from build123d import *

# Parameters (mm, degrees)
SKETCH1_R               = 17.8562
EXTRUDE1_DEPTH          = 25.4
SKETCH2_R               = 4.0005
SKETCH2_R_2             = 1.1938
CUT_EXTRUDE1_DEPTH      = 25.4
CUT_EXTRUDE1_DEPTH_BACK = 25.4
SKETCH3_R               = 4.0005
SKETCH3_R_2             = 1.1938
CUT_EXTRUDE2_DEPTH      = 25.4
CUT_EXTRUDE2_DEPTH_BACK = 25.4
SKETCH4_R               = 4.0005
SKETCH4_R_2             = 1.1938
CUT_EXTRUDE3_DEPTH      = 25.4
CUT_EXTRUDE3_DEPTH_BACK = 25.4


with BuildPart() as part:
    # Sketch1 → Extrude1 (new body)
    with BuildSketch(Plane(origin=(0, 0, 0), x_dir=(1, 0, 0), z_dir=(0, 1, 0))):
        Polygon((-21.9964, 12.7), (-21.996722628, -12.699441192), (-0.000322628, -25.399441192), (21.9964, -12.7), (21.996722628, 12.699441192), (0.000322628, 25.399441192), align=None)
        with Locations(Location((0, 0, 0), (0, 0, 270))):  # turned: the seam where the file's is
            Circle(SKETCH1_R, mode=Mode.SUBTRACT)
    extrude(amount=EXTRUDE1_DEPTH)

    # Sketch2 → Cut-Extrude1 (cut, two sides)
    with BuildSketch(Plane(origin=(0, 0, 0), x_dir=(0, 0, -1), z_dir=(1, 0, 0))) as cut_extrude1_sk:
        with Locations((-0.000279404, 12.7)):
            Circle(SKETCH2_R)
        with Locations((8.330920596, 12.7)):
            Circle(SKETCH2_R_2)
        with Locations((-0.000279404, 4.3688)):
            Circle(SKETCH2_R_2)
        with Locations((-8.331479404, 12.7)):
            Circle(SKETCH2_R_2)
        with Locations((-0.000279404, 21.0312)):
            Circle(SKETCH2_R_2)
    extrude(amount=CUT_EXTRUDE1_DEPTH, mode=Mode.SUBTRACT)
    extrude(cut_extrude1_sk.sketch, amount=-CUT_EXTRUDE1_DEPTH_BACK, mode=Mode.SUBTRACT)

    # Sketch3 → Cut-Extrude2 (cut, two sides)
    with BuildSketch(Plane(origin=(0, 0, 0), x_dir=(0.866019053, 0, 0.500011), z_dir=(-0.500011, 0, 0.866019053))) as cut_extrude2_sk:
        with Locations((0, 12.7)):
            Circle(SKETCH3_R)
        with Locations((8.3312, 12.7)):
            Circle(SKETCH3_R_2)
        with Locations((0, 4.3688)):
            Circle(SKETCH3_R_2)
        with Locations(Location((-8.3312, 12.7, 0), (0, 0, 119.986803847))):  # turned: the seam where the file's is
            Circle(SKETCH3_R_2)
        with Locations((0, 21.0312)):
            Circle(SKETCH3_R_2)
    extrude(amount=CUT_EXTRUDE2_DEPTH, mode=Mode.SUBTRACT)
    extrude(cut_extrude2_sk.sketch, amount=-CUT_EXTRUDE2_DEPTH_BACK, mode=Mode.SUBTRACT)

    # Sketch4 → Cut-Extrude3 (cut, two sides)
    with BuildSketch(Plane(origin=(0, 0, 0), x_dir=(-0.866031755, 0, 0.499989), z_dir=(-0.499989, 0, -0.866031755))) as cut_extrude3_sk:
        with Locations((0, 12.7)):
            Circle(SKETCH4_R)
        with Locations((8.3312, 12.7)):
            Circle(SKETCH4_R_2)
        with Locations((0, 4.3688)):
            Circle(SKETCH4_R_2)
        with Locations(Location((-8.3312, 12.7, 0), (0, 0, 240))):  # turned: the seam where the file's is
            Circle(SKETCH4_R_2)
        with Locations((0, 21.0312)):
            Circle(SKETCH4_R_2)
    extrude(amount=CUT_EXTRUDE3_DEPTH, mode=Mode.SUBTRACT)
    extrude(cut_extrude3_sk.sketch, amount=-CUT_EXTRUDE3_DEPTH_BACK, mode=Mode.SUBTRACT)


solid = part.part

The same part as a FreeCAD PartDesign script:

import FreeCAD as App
import Part
import Sketcher
Q = App.Units.Quantity


def add_polygon(sketch, points):
    """Adds a closed chain of lines whose ends are joined by coincident constraints."""
    first, n = sketch.GeometryCount, len(points)
    for a, b in zip(points, points[1:] + points[:1]):
        sketch.addGeometry(Part.LineSegment(App.Vector(*a, 0), App.Vector(*b, 0)), False)
    for i in range(n):
        sketch.addConstraint(Sketcher.Constraint("Coincident", first + i, 2, first + (i + 1) % n, 1))

doc = App.newDocument("Part")
body = doc.addObject("PartDesign::Body", "Body")

# Sketch on XZ plane
sketch1 = body.newObject("Sketcher::SketchObject", "Sketch")
sketch1.AttachmentSupport = (doc.getObject("XZ_Plane"), [""])
sketch1.MapMode = "FlatFace"
add_polygon(sketch1, [(-22, -13), (-22, 13), (0, 25), (22, 13), (22, -13), (0, -25)])  # lines 0-5
sketch1.addGeometry(Part.Circle(App.Vector(0, 0, 0), App.Vector(0, 0, 1), 18), False)  # 6
sketch1.addConstraint(Sketcher.Constraint("Coincident", 6, 3, -1, 1))
sketch1.addConstraint(Sketcher.Constraint("Symmetric", 0, 2, 3, 2, -1, 1))
sketch1.addConstraint(Sketcher.Constraint("Symmetric", 1, 2, 4, 2, -1, 1))
sketch1.addConstraint(Sketcher.Constraint("Symmetric", 2, 2, 5, 2, -1, 1))
sketch1.addConstraint(Sketcher.Constraint("Equal", 0, 1))
sketch1.addConstraint(Sketcher.Constraint("Equal", 1, 2))
sketch1.addConstraint(Sketcher.Constraint("Diameter", 6, Q("1.406 in")))
sketch1.addConstraint(Sketcher.Constraint("DistanceY", -1, 1, 2, 2, Q("0.5 in")))
sketch1.addConstraint(Sketcher.Constraint("DistanceY", 0, 2, 1, 2, Q("0.5 in")))
sketch1.addConstraint(Sketcher.Constraint("DistanceX", -1, 1, 2, 2, Q("0.866 in")))
sketch1.addConstraint(Sketcher.Constraint("DistanceX", 0, 2, 1, 2, Q("0.866 in")))
pad1 = body.newObject("PartDesign::Pad", "Pad")
pad1.Profile = sketch1
pad1.Length = Q("1 in")
pad1.Reversed = True

# Sketch on YZ plane
sketch2 = body.newObject("Sketcher::SketchObject", "Sketch001")
sketch2.AttachmentSupport = (doc.getObject("YZ_Plane"), [""])
sketch2.MapMode = "FlatFace"
sketch2.addGeometry(Part.Circle(App.Vector(12.7, 0, 0), App.Vector(0, 0, 1), 4), False)
sketch2.addGeometry(Part.Circle(App.Vector(12.7, -8.3, 0), App.Vector(0, 0, 1), 1.2), False)
sketch2.addGeometry(Part.Circle(App.Vector(4.4, 0, 0), App.Vector(0, 0, 1), 1.2), False)
sketch2.addGeometry(Part.Circle(App.Vector(12.7, 8.3, 0), App.Vector(0, 0, 1), 1.2), False)
sketch2.addGeometry(Part.Circle(App.Vector(21, 0, 0), App.Vector(0, 0, 1), 1.2), False)
sketch2.addConstraint(Sketcher.Constraint("Equal", 1, 2))
sketch2.addConstraint(Sketcher.Constraint("Equal", 2, 3))
sketch2.addConstraint(Sketcher.Constraint("Equal", 3, 4))
sketch2.addConstraint(Sketcher.Constraint("Horizontal", 0, 3, 2, 3))
sketch2.addConstraint(Sketcher.Constraint("Horizontal", 2, 3, 4, 3))
sketch2.addConstraint(Sketcher.Constraint("Vertical", 0, 3, 1, 3))
sketch2.addConstraint(Sketcher.Constraint("Vertical", 1, 3, 3, 3))
sketch2.addConstraint(Sketcher.Constraint("Diameter", 0, Q("0.315 in")))
sketch2.addConstraint(Sketcher.Constraint("Diameter", 1, Q("0.094 in")))
sketch2.addConstraint(Sketcher.Constraint("DistanceX", -1, 1, 0, 3, Q("0.5 in")))
sketch2.addConstraint(Sketcher.Constraint("DistanceX", -1, 1, 2, 3, Q("0.172 in")))
sketch2.addConstraint(Sketcher.Constraint("DistanceX", -1, 1, 4, 3, Q("0.828 in")))
sketch2.addConstraint(Sketcher.Constraint("DistanceY", 1, 3, 0, 3, Q("0.328 in")))
sketch2.addConstraint(Sketcher.Constraint("DistanceY", 0, 3, 3, 3, Q("0.328 in")))
sketch2.addConstraint(Sketcher.Constraint("DistanceY", -1, 1, 0, 3, 0.000279))
pocket1 = body.newObject("PartDesign::Pocket", "Pocket")
pocket1.Profile = sketch2
pocket1.Type = "ThroughAll"
pocket1.Midplane = True

# Sketch on an angled plane
sketch3 = body.newObject("Sketcher::SketchObject", "Sketch002")
sketch3.Placement = App.Placement(App.Vector(0, 0, 0), App.Rotation(App.Vector(0.866019053, 0, 0.500011), App.Vector(0, 1, 0), App.Vector(-0.500011, 0, 0.866019053), "ZXY"))
sketch3.addGeometry(Part.Circle(App.Vector(0, 12.7, 0), App.Vector(0, 0, 1), 4), False)
sketch3.addGeometry(Part.Circle(App.Vector(8.3, 12.7, 0), App.Vector(0, 0, 1), 1.2), False)
sketch3.addGeometry(Part.Circle(App.Vector(0, 4.4, 0), App.Vector(0, 0, 1), 1.2), False)
sketch3.addGeometry(Part.Circle(App.Vector(-8.3, 12.7, 0), App.Vector(0, 0, 1), 1.2), False)
sketch3.addGeometry(Part.Circle(App.Vector(0, 21, 0), App.Vector(0, 0, 1), 1.2), False)
sketch3.addConstraint(Sketcher.Constraint("Equal", 1, 2))
sketch3.addConstraint(Sketcher.Constraint("Equal", 2, 3))
sketch3.addConstraint(Sketcher.Constraint("Equal", 3, 4))
sketch3.addConstraint(Sketcher.Constraint("Symmetric", 1, 3, 3, 3, -2))
sketch3.addConstraint(Sketcher.Constraint("PointOnObject", 0, 3, -2))
sketch3.addConstraint(Sketcher.Constraint("PointOnObject", 2, 3, -2))
sketch3.addConstraint(Sketcher.Constraint("PointOnObject", 4, 3, -2))
sketch3.addConstraint(Sketcher.Constraint("Horizontal", 0, 3, 1, 3))
sketch3.addConstraint(Sketcher.Constraint("Diameter", 0, Q("0.315 in")))
sketch3.addConstraint(Sketcher.Constraint("Diameter", 1, Q("0.094 in")))
sketch3.addConstraint(Sketcher.Constraint("DistanceY", -1, 1, 0, 3, Q("0.5 in")))
sketch3.addConstraint(Sketcher.Constraint("DistanceX", -1, 1, 1, 3, Q("0.328 in")))
sketch3.addConstraint(Sketcher.Constraint("DistanceY", -1, 1, 2, 3, Q("0.172 in")))
sketch3.addConstraint(Sketcher.Constraint("DistanceY", -1, 1, 4, 3, Q("0.828 in")))
pocket2 = body.newObject("PartDesign::Pocket", "Pocket001")
pocket2.Profile = sketch3
pocket2.Type = "ThroughAll"
pocket2.Midplane = True

# Sketch on an angled plane
sketch4 = body.newObject("Sketcher::SketchObject", "Sketch003")
sketch4.Placement = App.Placement(App.Vector(0, 0, 0), App.Rotation(App.Vector(-0.866031755, 0, 0.499989), App.Vector(0, 1.000000001, 0), App.Vector(-0.499989, 0, -0.866031755), "ZXY"))
sketch4.addGeometry(Part.Circle(App.Vector(0, 12.7, 0), App.Vector(0, 0, 1), 4), False)
sketch4.addGeometry(Part.Circle(App.Vector(8.3, 12.7, 0), App.Vector(0, 0, 1), 1.2), False)
sketch4.addGeometry(Part.Circle(App.Vector(0, 4.4, 0), App.Vector(0, 0, 1), 1.2), False)
sketch4.addGeometry(Part.Circle(App.Vector(-8.3, 12.7, 0), App.Vector(0, 0, 1), 1.2), False)
sketch4.addGeometry(Part.Circle(App.Vector(0, 21, 0), App.Vector(0, 0, 1), 1.2), False)
sketch4.addConstraint(Sketcher.Constraint("Equal", 1, 2))
sketch4.addConstraint(Sketcher.Constraint("Equal", 2, 3))
sketch4.addConstraint(Sketcher.Constraint("Equal", 3, 4))
sketch4.addConstraint(Sketcher.Constraint("Symmetric", 1, 3, 3, 3, -2))
sketch4.addConstraint(Sketcher.Constraint("PointOnObject", 0, 3, -2))
sketch4.addConstraint(Sketcher.Constraint("PointOnObject", 2, 3, -2))
sketch4.addConstraint(Sketcher.Constraint("PointOnObject", 4, 3, -2))
sketch4.addConstraint(Sketcher.Constraint("Horizontal", 0, 3, 1, 3))
sketch4.addConstraint(Sketcher.Constraint("Diameter", 0, Q("0.315 in")))
sketch4.addConstraint(Sketcher.Constraint("Diameter", 1, Q("0.094 in")))
sketch4.addConstraint(Sketcher.Constraint("DistanceY", -1, 1, 0, 3, Q("0.5 in")))
sketch4.addConstraint(Sketcher.Constraint("DistanceX", -1, 1, 1, 3, Q("0.328 in")))
sketch4.addConstraint(Sketcher.Constraint("DistanceY", -1, 1, 2, 3, Q("0.172 in")))
sketch4.addConstraint(Sketcher.Constraint("DistanceY", -1, 1, 4, 3, Q("0.828 in")))
pocket3 = body.newObject("PartDesign::Pocket", "Pocket002")
pocket3.Profile = sketch4
pocket3.Type = "ThroughAll"
pocket3.Midplane = True

doc.recompute()
